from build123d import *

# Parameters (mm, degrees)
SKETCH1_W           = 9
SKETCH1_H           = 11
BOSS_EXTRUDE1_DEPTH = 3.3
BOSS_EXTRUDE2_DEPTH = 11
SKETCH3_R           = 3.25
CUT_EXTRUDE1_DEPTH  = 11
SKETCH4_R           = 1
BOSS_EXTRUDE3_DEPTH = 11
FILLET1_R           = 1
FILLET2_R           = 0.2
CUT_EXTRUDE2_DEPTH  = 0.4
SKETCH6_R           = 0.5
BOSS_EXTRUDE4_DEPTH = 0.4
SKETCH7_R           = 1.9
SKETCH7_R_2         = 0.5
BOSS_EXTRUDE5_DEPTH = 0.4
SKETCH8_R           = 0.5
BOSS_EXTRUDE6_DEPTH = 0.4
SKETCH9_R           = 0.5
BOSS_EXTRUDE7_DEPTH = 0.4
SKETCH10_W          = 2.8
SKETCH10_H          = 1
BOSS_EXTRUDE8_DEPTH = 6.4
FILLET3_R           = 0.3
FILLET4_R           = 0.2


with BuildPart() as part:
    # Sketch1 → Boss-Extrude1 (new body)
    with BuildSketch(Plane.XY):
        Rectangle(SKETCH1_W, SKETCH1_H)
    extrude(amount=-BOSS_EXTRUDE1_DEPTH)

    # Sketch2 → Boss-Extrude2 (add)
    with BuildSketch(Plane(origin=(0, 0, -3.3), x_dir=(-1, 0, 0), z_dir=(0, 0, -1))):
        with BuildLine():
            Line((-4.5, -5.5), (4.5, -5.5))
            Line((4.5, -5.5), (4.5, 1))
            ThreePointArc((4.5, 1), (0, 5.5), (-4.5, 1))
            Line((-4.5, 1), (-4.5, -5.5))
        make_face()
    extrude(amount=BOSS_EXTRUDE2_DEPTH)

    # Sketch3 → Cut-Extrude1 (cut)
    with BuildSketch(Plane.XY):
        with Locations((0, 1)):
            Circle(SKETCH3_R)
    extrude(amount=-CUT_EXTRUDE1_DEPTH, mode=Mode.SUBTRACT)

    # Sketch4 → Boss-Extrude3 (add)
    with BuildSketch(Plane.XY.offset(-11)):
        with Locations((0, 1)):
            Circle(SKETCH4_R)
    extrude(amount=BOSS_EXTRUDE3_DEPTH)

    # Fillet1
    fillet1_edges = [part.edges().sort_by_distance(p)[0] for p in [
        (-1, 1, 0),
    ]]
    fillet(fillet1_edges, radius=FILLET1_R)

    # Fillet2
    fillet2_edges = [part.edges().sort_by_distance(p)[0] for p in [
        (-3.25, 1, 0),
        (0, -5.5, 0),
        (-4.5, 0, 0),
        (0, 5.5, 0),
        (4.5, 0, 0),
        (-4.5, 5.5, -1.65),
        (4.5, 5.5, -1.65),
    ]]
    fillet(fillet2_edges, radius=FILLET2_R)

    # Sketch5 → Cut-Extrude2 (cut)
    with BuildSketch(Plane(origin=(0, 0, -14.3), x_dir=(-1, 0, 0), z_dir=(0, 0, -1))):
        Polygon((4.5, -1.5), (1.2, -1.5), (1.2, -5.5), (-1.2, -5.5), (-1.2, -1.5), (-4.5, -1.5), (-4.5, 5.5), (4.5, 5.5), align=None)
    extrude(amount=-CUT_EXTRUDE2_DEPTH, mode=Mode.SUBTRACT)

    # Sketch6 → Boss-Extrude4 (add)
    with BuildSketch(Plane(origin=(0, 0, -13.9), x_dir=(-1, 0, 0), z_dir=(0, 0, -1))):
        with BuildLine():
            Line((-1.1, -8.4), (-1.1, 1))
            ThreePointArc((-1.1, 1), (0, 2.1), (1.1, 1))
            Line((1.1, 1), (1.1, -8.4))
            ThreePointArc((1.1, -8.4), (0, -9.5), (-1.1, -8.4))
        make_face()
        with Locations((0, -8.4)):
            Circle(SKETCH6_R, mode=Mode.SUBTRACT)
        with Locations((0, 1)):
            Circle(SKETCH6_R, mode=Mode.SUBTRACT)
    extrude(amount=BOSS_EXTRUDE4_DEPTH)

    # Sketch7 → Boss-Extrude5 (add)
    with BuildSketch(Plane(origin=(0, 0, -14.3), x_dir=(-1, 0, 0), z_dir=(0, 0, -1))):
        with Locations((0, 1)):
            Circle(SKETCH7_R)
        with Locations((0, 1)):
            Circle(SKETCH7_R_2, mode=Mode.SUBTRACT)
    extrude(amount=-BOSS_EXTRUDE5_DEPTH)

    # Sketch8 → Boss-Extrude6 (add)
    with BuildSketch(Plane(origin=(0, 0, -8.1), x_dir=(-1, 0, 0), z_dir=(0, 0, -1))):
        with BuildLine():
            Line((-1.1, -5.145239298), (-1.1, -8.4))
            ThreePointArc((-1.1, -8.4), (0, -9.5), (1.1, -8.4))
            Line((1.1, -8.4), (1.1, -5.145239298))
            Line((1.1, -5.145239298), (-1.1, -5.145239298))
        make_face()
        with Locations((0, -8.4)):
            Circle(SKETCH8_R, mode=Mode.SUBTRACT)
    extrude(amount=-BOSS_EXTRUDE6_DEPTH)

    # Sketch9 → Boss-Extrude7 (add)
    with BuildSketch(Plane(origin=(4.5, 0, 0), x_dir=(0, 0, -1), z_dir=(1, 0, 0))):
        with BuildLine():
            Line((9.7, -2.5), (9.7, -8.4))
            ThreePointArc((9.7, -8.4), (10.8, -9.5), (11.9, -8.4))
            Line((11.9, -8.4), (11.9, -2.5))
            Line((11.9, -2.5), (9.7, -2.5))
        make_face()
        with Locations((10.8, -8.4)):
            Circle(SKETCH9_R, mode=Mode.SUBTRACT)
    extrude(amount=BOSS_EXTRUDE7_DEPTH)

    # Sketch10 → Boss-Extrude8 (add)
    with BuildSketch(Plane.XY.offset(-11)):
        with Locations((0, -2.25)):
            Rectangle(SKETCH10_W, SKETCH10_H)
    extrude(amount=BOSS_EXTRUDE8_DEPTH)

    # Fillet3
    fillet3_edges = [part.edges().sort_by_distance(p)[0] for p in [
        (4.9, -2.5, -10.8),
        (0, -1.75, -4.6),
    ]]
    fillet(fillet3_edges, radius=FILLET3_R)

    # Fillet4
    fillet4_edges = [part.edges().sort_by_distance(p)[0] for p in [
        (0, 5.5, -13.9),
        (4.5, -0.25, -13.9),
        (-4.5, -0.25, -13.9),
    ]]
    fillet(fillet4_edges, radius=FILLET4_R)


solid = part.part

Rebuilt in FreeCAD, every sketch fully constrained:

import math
import FreeCAD as App
import Part
import Sketcher
from FreeCAD import Vector
Q = App.Units.Quantity


def edges_at(feature, points):
    """Names of the edges that pass closest to the given points."""
    edges = feature.Shape.Edges
    near = lambda p: min(range(len(edges)), key=lambda i: edges[i].distToShape(Part.Vertex(*p))[0])
    return sorted({f"Edge{near(p) + 1}" for p in points})

doc = App.newDocument("Part")
params = doc.addObject("Spreadsheet::Sheet", "Params")
for row, (alias, value) in enumerate([
    ("sketch1_width", "9 mm"),
    ("sketch1_height", "11 mm"),
    ("pad1_length", "3.3 mm"),
    ("sketch2_radius", "4.5 mm"),
    ("sketch2_height", "6.5 mm"),
    ("pad2_length", "11 mm"),
    ("sketch3_diameter", "6.5 mm"),
    ("pocket1_length", "11 mm"),
    ("sketch4_diameter", "2 mm"),
    ("pad3_length", "11 mm"),
    ("fillet_radius", "1 mm"),
    ("fillet2_radius", "0.2 mm"),
    ("sketch5_width", "9 mm"),
    ("sketch5_height", "7 mm"),
    ("sketch5_height2", "4 mm"),
    ("sketch5_width2", "3.3 mm"),
    ("pocket2_length", "0.4 mm"),
    ("sketch6_diameter", "1 mm"),
    ("sketch6_radius", "1.1 mm"),
    ("sketch6_height", "9.4 mm"),
    ("pad4_length", "0.4 mm"),
    ("sketch7_diameter", "1 mm"),
    ("sketch7_diameter2", "3.8 mm"),
    ("pad5_length", "0.4 mm"),
    ("sketch8_diameter", "1 mm"),
    ("sketch8_radius", "1.1 mm"),
    ("pad6_length", "0.4 mm"),
    ("sketch9_diameter", "1 mm"),
    ("sketch9_radius", "1.1 mm"),
    ("sketch9_width", "5.9 mm"),
    ("pad7_length", "0.4 mm"),
    ("sketch10_height", "1 mm"),
    ("sketch10_width", "2.8 mm"),
    ("pad8_length", "6.4 mm"),
    ("fillet3_radius", "0.3 mm"),
    ("fillet4_radius", "0.2 mm"),
], start=1):
    params.set(f"A{row}", alias)
    params.set(f"B{row}", "=" + value)
    params.setAlias(f"B{row}", alias)

body = doc.addObject("PartDesign::Body", "Body")

sketch1 = doc.addObject("Sketcher::SketchObject", "Sketch")
body.addObject(sketch1)
sketch1.AttachmentSupport = (doc.XY_Plane, [""])
sketch1.MapMode = "FlatFace"
sketch1.addGeometry(Part.LineSegment(Vector(-4, 6, 0), Vector(-4, -6, 0)), False)
sketch1.addGeometry(Part.LineSegment(Vector(-4, -6, 0), Vector(4, -6, 0)), False)
sketch1.addGeometry(Part.LineSegment(Vector(4, -6, 0), Vector(4, 6, 0)), False)
sketch1.addGeometry(Part.LineSegment(Vector(4, 6, 0), Vector(-4, 6, 0)), False)
sketch1.addConstraint(Sketcher.Constraint("Coincident", 0, 2, 1, 1))
sketch1.addConstraint(Sketcher.Constraint("Coincident", 1, 2, 2, 1))
sketch1.addConstraint(Sketcher.Constraint("Coincident", 2, 2, 3, 1))
sketch1.addConstraint(Sketcher.Constraint("Coincident", 3, 2, 0, 1))
sketch1.addConstraint(Sketcher.Constraint("Vertical", 0))
sketch1.addConstraint(Sketcher.Constraint("Horizontal", 1))
sketch1.addConstraint(Sketcher.Constraint("Vertical", 2))
sketch1.addConstraint(Sketcher.Constraint("Horizontal", 3))
sketch1.addConstraint(Sketcher.Constraint("Symmetric", 0, 2, 2, 2, -1, 1))
sketch1.addConstraint(Sketcher.Constraint("DistanceX", 1, 1, 1, 2, Q("9 mm")))
sketch1.addConstraint(Sketcher.Constraint("DistanceY", 0, 2, 0, 1, Q("11 mm")))
sketch1.setExpression("Constraints[9]", "Params.sketch1_width")
sketch1.setExpression("Constraints[10]", "Params.sketch1_height")
pad1 = doc.addObject("PartDesign::Pad", "Pad")
body.addObject(pad1)
pad1.Profile = sketch1
pad1.setExpression("Length", "Params.pad1_length")
pad1.Reversed = True

sketch2 = doc.addObject("Sketcher::SketchObject", "Sketch001")
body.addObject(sketch2)
sketch2.AttachmentSupport = (doc.XY_Plane, [""])
sketch2.MapMode = "FlatFace"
sketch2.AttachmentOffset = App.Placement(Vector(0, 0, -3.3), App.Rotation())
sketch2.addGeometry(Part.LineSegment(Vector(4.5, -5.5, 0), Vector(-4.5, -5.5, 0)), False)
sketch2.addGeometry(Part.LineSegment(Vector(-4.5, -5.5, 0), Vector(-4.5, 1, 0)), False)
sketch2.addGeometry(Part.ArcOfCircle(Part.Circle(Vector(0, 1, 0), Vector(0, 0, 1), 4.5), math.radians(0), math.radians(180)), False)
sketch2.addGeometry(Part.LineSegment(Vector(4.5, 1, 0), Vector(4.5, -5.5, 0)), False)
sketch2.addConstraint(Sketcher.Constraint("Coincident", 0, 2, 1, 1))
sketch2.addConstraint(Sketcher.Constraint("Tangent", 1, 2, 2, 2))
sketch2.addConstraint(Sketcher.Constraint("Tangent", 2, 1, 3, 1))
sketch2.addConstraint(Sketcher.Constraint("Coincident", 3, 2, 0, 1))
sketch2.addConstraint(Sketcher.Constraint("Horizontal", 0))
sketch2.addConstraint(Sketcher.Constraint("Vertical", 1))
sketch2.addConstraint(Sketcher.Constraint("Vertical", 3))
sketch2.addConstraint(Sketcher.Constraint("PointOnObject", 2, 3, -2))
sketch2.addConstraint(Sketcher.Constraint("Radius", 2, Q("4.5 mm")))
sketch2.addConstraint(Sketcher.Constraint("DistanceY", 1, 1, 1, 2, Q("6.5 mm")))
sketch2.addConstraint(Sketcher.Constraint("DistanceY", -1, 1, 2, 3, Q("1 mm")))
sketch2.setExpression("Constraints[8]", "Params.sketch2_radius")
sketch2.setExpression("Constraints[9]", "Params.sketch2_height")
pad2 = doc.addObject("PartDesign::Pad", "Pad001")
body.addObject(pad2)
pad2.Profile = sketch2
pad2.setExpression("Length", "Params.pad2_length")
pad2.Reversed = True

sketch3 = doc.addObject("Sketcher::SketchObject", "Sketch002")
body.addObject(sketch3)
sketch3.AttachmentSupport = (doc.XY_Plane, [""])
sketch3.MapMode = "FlatFace"
sketch3.addGeometry(Part.Circle(Vector(0, 1, 0), Vector(0, 0, 1), 3.2), False)
sketch3.addConstraint(Sketcher.Constraint("PointOnObject", 0, 3, -2))
sketch3.addConstraint(Sketcher.Constraint("Diameter", 0, Q("6.5 mm")))
sketch3.addConstraint(Sketcher.Constraint("DistanceY", -1, 1, 0, 3, Q("1 mm")))
sketch3.setExpression("Constraints[1]", "Params.sketch3_diameter")
pocket1 = doc.addObject("PartDesign::Pocket", "Pocket")
body.addObject(pocket1)
pocket1.Profile = sketch3
pocket1.setExpression("Length", "Params.pocket1_length")

sketch4 = doc.addObject("Sketcher::SketchObject", "Sketch003")
body.addObject(sketch4)
sketch4.AttachmentSupport = (doc.XY_Plane, [""])
sketch4.MapMode = "FlatFace"
sketch4.AttachmentOffset = App.Placement(Vector(0, 0, -11), App.Rotation())
sketch4.addGeometry(Part.Circle(Vector(0, 1, 0), Vector(0, 0, 1), 1), False)
sketch4.addConstraint(Sketcher.Constraint("PointOnObject", 0, 3, -2))
sketch4.addConstraint(Sketcher.Constraint("Diameter", 0, Q("2 mm")))
sketch4.addConstraint(Sketcher.Constraint("DistanceY", -1, 1, 0, 3, Q("1 mm")))
sketch4.setExpression("Constraints[1]", "Params.sketch4_diameter")
pad3 = doc.addObject("PartDesign::Pad", "Pad002")
body.addObject(pad3)
pad3.Profile = sketch4
pad3.setExpression("Length", "Params.pad3_length")
doc.recompute()

fillet = doc.addObject("PartDesign::Fillet", "Fillet")
body.addObject(fillet)
fillet.Base = (pad3, edges_at(pad3, [(-1, 1, 0)]))
fillet.setExpression("Radius", "Params.fillet_radius")
doc.recompute()

fillet2 = doc.addObject("PartDesign::Fillet", "Fillet001")
body.addObject(fillet2)
fillet2.Base = (fillet, edges_at(fillet, [
    (-3.25, 1, 0),
    (0, -5.5, 0),
    (-4.5, 0, 0),
    (0, 5.5, 0),
    (4.5, 0, 0),
    (-4.5, 5.5, -1.65),
    (4.5, 5.5, -1.65),
]))
fillet2.setExpression("Radius", "Params.fillet2_radius")

sketch5 = doc.addObject("Sketcher::SketchObject", "Sketch004")
body.addObject(sketch5)
sketch5.AttachmentSupport = (doc.XY_Plane, [""])
sketch5.MapMode = "FlatFace"
sketch5.AttachmentOffset = App.Placement(Vector(0, 0, -14.3), App.Rotation())
sketch5.addGeometry(Part.LineSegment(Vector(-1.2, -1.5, 0), Vector(-4.5, -1.5, 0)), False)
sketch5.addGeometry(Part.LineSegment(Vector(-4.5, -1.5, 0), Vector(-4.5, 5.5, 0)), False)
sketch5.addGeometry(Part.LineSegment(Vector(-4.5, 5.5, 0), Vector(4.5, 5.5, 0)), False)
sketch5.addGeometry(Part.LineSegment(Vector(4.5, 5.5, 0), Vector(4.5, -1.5, 0)), False)
sketch5.addGeometry(Part.LineSegment(Vector(4.5, -1.5, 0), Vector(1.2, -1.5, 0)), False)
sketch5.addGeometry(Part.LineSegment(Vector(1.2, -1.5, 0), Vector(1.2, -5.5, 0)), False)
sketch5.addGeometry(Part.LineSegment(Vector(1.2, -5.5, 0), Vector(-1.2, -5.5, 0)), False)
sketch5.addGeometry(Part.LineSegment(Vector(-1.2, -5.5, 0), Vector(-1.2, -1.5, 0)), False)
sketch5.addConstraint(Sketcher.Constraint("Coincident", 0, 2, 1, 1))
sketch5.addConstraint(Sketcher.Constraint("Coincident", 1, 2, 2, 1))
sketch5.addConstraint(Sketcher.Constraint("Coincident", 2, 2, 3, 1))
sketch5.addConstraint(Sketcher.Constraint("Coincident", 3, 2, 4, 1))
sketch5.addConstraint(Sketcher.Constraint("Coincident", 4, 2, 5, 1))
sketch5.addConstraint(Sketcher.Constraint("Coincident", 5, 2, 6, 1))
sketch5.addConstraint(Sketcher.Constraint("Coincident", 6, 2, 7, 1))
sketch5.addConstraint(Sketcher.Constraint("Coincident", 7, 2, 0, 1))
sketch5.addConstraint(Sketcher.Constraint("Horizontal", 0))
sketch5.addConstraint(Sketcher.Constraint("Vertical", 1))
sketch5.addConstraint(Sketcher.Constraint("Horizontal", 2))
sketch5.addConstraint(Sketcher.Constraint("Vertical", 3))
sketch5.addConstraint(Sketcher.Constraint("Horizontal", 4))
sketch5.addConstraint(Sketcher.Constraint("Vertical", 5))
sketch5.addConstraint(Sketcher.Constraint("Horizontal", 6))
sketch5.addConstraint(Sketcher.Constraint("Vertical", 7))
sketch5.addConstraint(Sketcher.Constraint("Symmetric", 0, 2, 3, 2, -2))
sketch5.addConstraint(Sketcher.Constraint("Equal", 0, 4))
sketch5.addConstraint(Sketcher.Constraint("DistanceX", 2, 1, 2, 2, Q("9 mm")))
sketch5.addConstraint(Sketcher.Constraint("DistanceY", 1, 1, 1, 2, Q("7 mm")))
sketch5.addConstraint(Sketcher.Constraint("DistanceY", 5, 2, 5, 1, Q("4 mm")))
sketch5.addConstraint(Sketcher.Constraint("DistanceX", 0, 2, 0, 1, Q("3.3 mm")))
sketch5.addConstraint(Sketcher.Constraint("DistanceY", 0, 2, -1, 1, Q("1.5 mm")))
sketch5.setExpression("Constraints[18]", "Params.sketch5_width")
sketch5.setExpression("Constraints[19]", "Params.sketch5_height")
sketch5.setExpression("Constraints[20]", "Params.sketch5_height2")
sketch5.setExpression("Constraints[21]", "Params.sketch5_width2")
pocket2 = doc.addObject("PartDesign::Pocket", "Pocket001")
body.addObject(pocket2)
pocket2.Profile = sketch5
pocket2.setExpression("Length", "Params.pocket2_length")
pocket2.Reversed = True

sketch6 = doc.addObject("Sketcher::SketchObject", "Sketch005")
body.addObject(sketch6)
sketch6.AttachmentSupport = (doc.XY_Plane, [""])
sketch6.MapMode = "FlatFace"
sketch6.AttachmentOffset = App.Placement(Vector(0, 0, -13.9), App.Rotation())
sketch6.addGeometry(Part.LineSegment(Vector(1.1, 1, 0), Vector(1.1, -8.4, 0)), False)
sketch6.addGeometry(Part.ArcOfCircle(Part.Circle(Vector(0, -8.4, 0), Vector(0, 0, 1), 1.1), math.radians(180), math.radians(360)), False)
sketch6.addGeometry(Part.LineSegment(Vector(-1.1, -8.4, 0), Vector(-1.1, 1, 0)), False)
sketch6.addGeometry(Part.ArcOfCircle(Part.Circle(Vector(0, 1, 0), Vector(0, 0, 1), 1.1), math.radians(0), math.radians(180)), False)
sketch6.addGeometry(Part.Circle(Vector(0, -8.4, 0), Vector(0, 0, 1), 0.5), False)
sketch6.addGeometry(Part.Circle(Vector(0, 1, 0), Vector(0, 0, 1), 0.5), False)
sketch6.addConstraint(Sketcher.Constraint("Tangent", 0, 2, 1, 2))
sketch6.addConstraint(Sketcher.Constraint("Tangent", 1, 1, 2, 1))
sketch6.addConstraint(Sketcher.Constraint("Tangent", 2, 2, 3, 2))
sketch6.addConstraint(Sketcher.Constraint("Tangent", 3, 1, 0, 1))
sketch6.addConstraint(Sketcher.Constraint("Vertical", 0))
sketch6.addConstraint(Sketcher.Constraint("Vertical", 2))
sketch6.addConstraint(Sketcher.Constraint("Coincident", 4, 3, 1, 3))
sketch6.addConstraint(Sketcher.Constraint("Coincident", 5, 3, 3, 3))
sketch6.addConstraint(Sketcher.Constraint("Equal", 4, 5))
sketch6.addConstraint(Sketcher.Constraint("PointOnObject", 1, 3, -2))
sketch6.addConstraint(Sketcher.Constraint("Diameter", 4, Q("1 mm")))
sketch6.addConstraint(Sketcher.Constraint("Radius", 1, Q("1.1 mm")))
sketch6.addConstraint(Sketcher.Constraint("DistanceY", 0, 2, 0, 1, Q("9.4 mm")))
sketch6.addConstraint(Sketcher.Constraint("DistanceY", -1, 1, 3, 3, Q("1 mm")))
sketch6.setExpression("Constraints[10]", "Params.sketch6_diameter")
sketch6.setExpression("Constraints[11]", "Params.sketch6_radius")
sketch6.setExpression("Constraints[12]", "Params.sketch6_height")
pad4 = doc.addObject("PartDesign::Pad", "Pad003")
body.addObject(pad4)
pad4.Profile = sketch6
pad4.setExpression("Length", "Params.pad4_length")
pad4.Reversed = True

sketch7 = doc.addObject("Sketcher::SketchObject", "Sketch006")
body.addObject(sketch7)
sketch7.AttachmentSupport = (doc.XY_Plane, [""])
sketch7.MapMode = "FlatFace"
sketch7.AttachmentOffset = App.Placement(Vector(0, 0, -14.3), App.Rotation())
sketch7.addGeometry(Part.Circle(Vector(0, 1, 0), Vector(0, 0, 1), 1.9), False)
sketch7.addGeometry(Part.Circle(Vector(0, 1, 0), Vector(0, 0, 1), 0.5), False)
sketch7.addConstraint(Sketcher.Constraint("Coincident", 1, 3, 0, 3))
sketch7.addConstraint(Sketcher.Constraint("PointOnObject", 0, 3, -2))
sketch7.addConstraint(Sketcher.Constraint("Diameter", 1, Q("1 mm")))
sketch7.addConstraint(Sketcher.Constraint("Diameter", 0, Q("3.8 mm")))
sketch7.addConstraint(Sketcher.Constraint("DistanceY", -1, 1, 0, 3, Q("1 mm")))
sketch7.setExpression("Constraints[2]", "Params.sketch7_diameter")
sketch7.setExpression("Constraints[3]", "Params.sketch7_diameter2")
pad5 = doc.addObject("PartDesign::Pad", "Pad004")
body.addObject(pad5)
pad5.Profile = sketch7
pad5.setExpression("Length", "Params.pad5_length")

sketch8 = doc.addObject("Sketcher::SketchObject", "Sketch007")
body.addObject(sketch8)
sketch8.AttachmentSupport = (doc.XY_Plane, [""])
sketch8.MapMode = "FlatFace"
sketch8.AttachmentOffset = App.Placement(Vector(0, 0, -8.1), App.Rotation())
sketch8.addGeometry(Part.LineSegment(Vector(1.1, -5.1, 0), Vector(1.1, -8.4, 0)), False)
sketch8.addGeometry(Part.ArcOfCircle(Part.Circle(Vector(0, -8.4, 0), Vector(0, 0, 1), 1.1), math.radians(180), math.radians(360)), False)
sketch8.addGeometry(Part.LineSegment(Vector(-1.1, -8.4, 0), Vector(-1.1, -5.1, 0)), False)
sketch8.addGeometry(Part.LineSegment(Vector(-1.1, -5.1, 0), Vector(1.1, -5.1, 0)), False)
sketch8.addGeometry(Part.Circle(Vector(0, -8.4, 0), Vector(0, 0, 1), 0.5), False)
sketch8.addConstraint(Sketcher.Constraint("Tangent", 0, 2, 1, 2))
sketch8.addConstraint(Sketcher.Constraint("Tangent", 1, 1, 2, 1))
sketch8.addConstraint(Sketcher.Constraint("Coincident", 2, 2, 3, 1))
sketch8.addConstraint(Sketcher.Constraint("Coincident", 3, 2, 0, 1))
sketch8.addConstraint(Sketcher.Constraint("Vertical", 0))
sketch8.addConstraint(Sketcher.Constraint("Vertical", 2))
sketch8.addConstraint(Sketcher.Constraint("Horizontal", 3))
sketch8.addConstraint(Sketcher.Constraint("Coincident", 4, 3, 1, 3))
sketch8.addConstraint(Sketcher.Constraint("PointOnObject", 1, 3, -2))
sketch8.addConstraint(Sketcher.Constraint("Diameter", 4, Q("1 mm")))
sketch8.addConstraint(Sketcher.Constraint("Radius", 1, Q("1.1 mm")))
sketch8.addConstraint(Sketcher.Constraint("DistanceY", 1, 3, -1, 1, Q("8.4 mm")))
sketch8.addConstraint(Sketcher.Constraint("DistanceY", 0, 2, 0, 1, Q("3.254761 mm")))
sketch8.setExpression("Constraints[9]", "Params.sketch8_diameter")
sketch8.setExpression("Constraints[10]", "Params.sketch8_radius")
pad6 = doc.addObject("PartDesign::Pad", "Pad005")
body.addObject(pad6)
pad6.Profile = sketch8
pad6.setExpression("Length", "Params.pad6_length")

sketch9 = doc.addObject("Sketcher::SketchObject", "Sketch008")
body.addObject(sketch9)
sketch9.AttachmentSupport = (doc.YZ_Plane, [""])
sketch9.MapMode = "FlatFace"
sketch9.AttachmentOffset = App.Placement(Vector(0, 0, 4.5), App.Rotation())
sketch9.addGeometry(Part.LineSegment(Vector(-2.5, -9.7, 0), Vector(-8.4, -9.7, 0)), False)
sketch9.addGeometry(Part.ArcOfCircle(Part.Circle(Vector(-8.4, -10.8, 0), Vector(0, 0, 1), 1.1), math.radians(90), math.radians(270)), False)
sketch9.addGeometry(Part.LineSegment(Vector(-8.4, -11.9, 0), Vector(-2.5, -11.9, 0)), False)
sketch9.addGeometry(Part.LineSegment(Vector(-2.5, -11.9, 0), Vector(-2.5, -9.7, 0)), False)
sketch9.addGeometry(Part.Circle(Vector(-8.4, -10.8, 0), Vector(0, 0, 1), 0.5), False)
sketch9.addConstraint(Sketcher.Constraint("Tangent", 0, 2, 1, 1))
sketch9.addConstraint(Sketcher.Constraint("Tangent", 1, 2, 2, 1))
sketch9.addConstraint(Sketcher.Constraint("Coincident", 2, 2, 3, 1))
sketch9.addConstraint(Sketcher.Constraint("Coincident", 3, 2, 0, 1))
sketch9.addConstraint(Sketcher.Constraint("Horizontal", 0))
sketch9.addConstraint(Sketcher.Constraint("Horizontal", 2))
sketch9.addConstraint(Sketcher.Constraint("Vertical", 3))
sketch9.addConstraint(Sketcher.Constraint("Coincident", 4, 3, 1, 3))
sketch9.addConstraint(Sketcher.Constraint("Diameter", 4, Q("1 mm")))
sketch9.addConstraint(Sketcher.Constraint("Radius", 1, Q("1.1 mm")))
sketch9.addConstraint(Sketcher.Constraint("DistanceX", 0, 2, 0, 1, Q("5.9 mm")))
sketch9.addConstraint(Sketcher.Constraint("DistanceX", 1, 3, -1, 1, Q("8.4 mm")))
sketch9.addConstraint(Sketcher.Constraint("DistanceY", 1, 3, -1, 1, Q("10.8 mm")))
sketch9.setExpression("Constraints[8]", "Params.sketch9_diameter")
sketch9.setExpression("Constraints[9]", "Params.sketch9_radius")
sketch9.setExpression("Constraints[10]", "Params.sketch9_width")
pad7 = doc.addObject("PartDesign::Pad", "Pad006")
body.addObject(pad7)
pad7.Profile = sketch9
pad7.setExpression("Length", "Params.pad7_length")

sketch10 = doc.addObject("Sketcher::SketchObject", "Sketch009")
body.addObject(sketch10)
sketch10.AttachmentSupport = (doc.XY_Plane, [""])
sketch10.MapMode = "FlatFace"
sketch10.AttachmentOffset = App.Placement(Vector(0, 0, -11), App.Rotation())
sketch10.addGeometry(Part.LineSegment(Vector(-1.4, -1.8, 0), Vector(-1.4, -2.8, 0)), False)
sketch10.addGeometry(Part.LineSegment(Vector(-1.4, -2.8, 0), Vector(1.4, -2.8, 0)), False)
sketch10.addGeometry(Part.LineSegment(Vector(1.4, -2.8, 0), Vector(1.4, -1.8, 0)), False)
sketch10.addGeometry(Part.LineSegment(Vector(1.4, -1.8, 0), Vector(-1.4, -1.8, 0)), False)
sketch10.addConstraint(Sketcher.Constraint("Coincident", 0, 2, 1, 1))
sketch10.addConstraint(Sketcher.Constraint("Coincident", 1, 2, 2, 1))
sketch10.addConstraint(Sketcher.Constraint("Coincident", 2, 2, 3, 1))
sketch10.addConstraint(Sketcher.Constraint("Coincident", 3, 2, 0, 1))
sketch10.addConstraint(Sketcher.Constraint("Vertical", 0))
sketch10.addConstraint(Sketcher.Constraint("Horizontal", 1))
sketch10.addConstraint(Sketcher.Constraint("Vertical", 2))
sketch10.addConstraint(Sketcher.Constraint("Horizontal", 3))
sketch10.addConstraint(Sketcher.Constraint("DistanceY", 0, 2, 0, 1, Q("1 mm")))
sketch10.addConstraint(Sketcher.Constraint("DistanceX", 1, 1, 1, 2, Q("2.8 mm")))
sketch10.addConstraint(Sketcher.Constraint("DistanceX", 0, 2, -1, 1, Q("1.4 mm")))
sketch10.addConstraint(Sketcher.Constraint("DistanceY", 0, 2, -1, 1, Q("2.75 mm")))
sketch10.setExpression("Constraints[8]", "Params.sketch10_height")
sketch10.setExpression("Constraints[9]", "Params.sketch10_width")
pad8 = doc.addObject("PartDesign::Pad", "Pad007")
body.addObject(pad8)
pad8.Profile = sketch10
pad8.setExpression("Length", "Params.pad8_length")
doc.recompute()

fillet3 = doc.addObject("PartDesign::Fillet", "Fillet002")
body.addObject(fillet3)
fillet3.Base = (pad8, edges_at(pad8, [(4.9, -2.5, -10.8), (0, -1.75, -4.6)]))
fillet3.setExpression("Radius", "Params.fillet3_radius")
doc.recompute()

fillet4 = doc.addObject("PartDesign::Fillet", "Fillet003")
body.addObject(fillet4)
fillet4.Base = (fillet3, edges_at(fillet3, [(0, 5.5, -13.9), (4.5, -0.25, -13.9), (-4.5, -0.25, -13.9)]))
fillet4.setExpression("Radius", "Params.fillet4_radius")

doc.recompute()
